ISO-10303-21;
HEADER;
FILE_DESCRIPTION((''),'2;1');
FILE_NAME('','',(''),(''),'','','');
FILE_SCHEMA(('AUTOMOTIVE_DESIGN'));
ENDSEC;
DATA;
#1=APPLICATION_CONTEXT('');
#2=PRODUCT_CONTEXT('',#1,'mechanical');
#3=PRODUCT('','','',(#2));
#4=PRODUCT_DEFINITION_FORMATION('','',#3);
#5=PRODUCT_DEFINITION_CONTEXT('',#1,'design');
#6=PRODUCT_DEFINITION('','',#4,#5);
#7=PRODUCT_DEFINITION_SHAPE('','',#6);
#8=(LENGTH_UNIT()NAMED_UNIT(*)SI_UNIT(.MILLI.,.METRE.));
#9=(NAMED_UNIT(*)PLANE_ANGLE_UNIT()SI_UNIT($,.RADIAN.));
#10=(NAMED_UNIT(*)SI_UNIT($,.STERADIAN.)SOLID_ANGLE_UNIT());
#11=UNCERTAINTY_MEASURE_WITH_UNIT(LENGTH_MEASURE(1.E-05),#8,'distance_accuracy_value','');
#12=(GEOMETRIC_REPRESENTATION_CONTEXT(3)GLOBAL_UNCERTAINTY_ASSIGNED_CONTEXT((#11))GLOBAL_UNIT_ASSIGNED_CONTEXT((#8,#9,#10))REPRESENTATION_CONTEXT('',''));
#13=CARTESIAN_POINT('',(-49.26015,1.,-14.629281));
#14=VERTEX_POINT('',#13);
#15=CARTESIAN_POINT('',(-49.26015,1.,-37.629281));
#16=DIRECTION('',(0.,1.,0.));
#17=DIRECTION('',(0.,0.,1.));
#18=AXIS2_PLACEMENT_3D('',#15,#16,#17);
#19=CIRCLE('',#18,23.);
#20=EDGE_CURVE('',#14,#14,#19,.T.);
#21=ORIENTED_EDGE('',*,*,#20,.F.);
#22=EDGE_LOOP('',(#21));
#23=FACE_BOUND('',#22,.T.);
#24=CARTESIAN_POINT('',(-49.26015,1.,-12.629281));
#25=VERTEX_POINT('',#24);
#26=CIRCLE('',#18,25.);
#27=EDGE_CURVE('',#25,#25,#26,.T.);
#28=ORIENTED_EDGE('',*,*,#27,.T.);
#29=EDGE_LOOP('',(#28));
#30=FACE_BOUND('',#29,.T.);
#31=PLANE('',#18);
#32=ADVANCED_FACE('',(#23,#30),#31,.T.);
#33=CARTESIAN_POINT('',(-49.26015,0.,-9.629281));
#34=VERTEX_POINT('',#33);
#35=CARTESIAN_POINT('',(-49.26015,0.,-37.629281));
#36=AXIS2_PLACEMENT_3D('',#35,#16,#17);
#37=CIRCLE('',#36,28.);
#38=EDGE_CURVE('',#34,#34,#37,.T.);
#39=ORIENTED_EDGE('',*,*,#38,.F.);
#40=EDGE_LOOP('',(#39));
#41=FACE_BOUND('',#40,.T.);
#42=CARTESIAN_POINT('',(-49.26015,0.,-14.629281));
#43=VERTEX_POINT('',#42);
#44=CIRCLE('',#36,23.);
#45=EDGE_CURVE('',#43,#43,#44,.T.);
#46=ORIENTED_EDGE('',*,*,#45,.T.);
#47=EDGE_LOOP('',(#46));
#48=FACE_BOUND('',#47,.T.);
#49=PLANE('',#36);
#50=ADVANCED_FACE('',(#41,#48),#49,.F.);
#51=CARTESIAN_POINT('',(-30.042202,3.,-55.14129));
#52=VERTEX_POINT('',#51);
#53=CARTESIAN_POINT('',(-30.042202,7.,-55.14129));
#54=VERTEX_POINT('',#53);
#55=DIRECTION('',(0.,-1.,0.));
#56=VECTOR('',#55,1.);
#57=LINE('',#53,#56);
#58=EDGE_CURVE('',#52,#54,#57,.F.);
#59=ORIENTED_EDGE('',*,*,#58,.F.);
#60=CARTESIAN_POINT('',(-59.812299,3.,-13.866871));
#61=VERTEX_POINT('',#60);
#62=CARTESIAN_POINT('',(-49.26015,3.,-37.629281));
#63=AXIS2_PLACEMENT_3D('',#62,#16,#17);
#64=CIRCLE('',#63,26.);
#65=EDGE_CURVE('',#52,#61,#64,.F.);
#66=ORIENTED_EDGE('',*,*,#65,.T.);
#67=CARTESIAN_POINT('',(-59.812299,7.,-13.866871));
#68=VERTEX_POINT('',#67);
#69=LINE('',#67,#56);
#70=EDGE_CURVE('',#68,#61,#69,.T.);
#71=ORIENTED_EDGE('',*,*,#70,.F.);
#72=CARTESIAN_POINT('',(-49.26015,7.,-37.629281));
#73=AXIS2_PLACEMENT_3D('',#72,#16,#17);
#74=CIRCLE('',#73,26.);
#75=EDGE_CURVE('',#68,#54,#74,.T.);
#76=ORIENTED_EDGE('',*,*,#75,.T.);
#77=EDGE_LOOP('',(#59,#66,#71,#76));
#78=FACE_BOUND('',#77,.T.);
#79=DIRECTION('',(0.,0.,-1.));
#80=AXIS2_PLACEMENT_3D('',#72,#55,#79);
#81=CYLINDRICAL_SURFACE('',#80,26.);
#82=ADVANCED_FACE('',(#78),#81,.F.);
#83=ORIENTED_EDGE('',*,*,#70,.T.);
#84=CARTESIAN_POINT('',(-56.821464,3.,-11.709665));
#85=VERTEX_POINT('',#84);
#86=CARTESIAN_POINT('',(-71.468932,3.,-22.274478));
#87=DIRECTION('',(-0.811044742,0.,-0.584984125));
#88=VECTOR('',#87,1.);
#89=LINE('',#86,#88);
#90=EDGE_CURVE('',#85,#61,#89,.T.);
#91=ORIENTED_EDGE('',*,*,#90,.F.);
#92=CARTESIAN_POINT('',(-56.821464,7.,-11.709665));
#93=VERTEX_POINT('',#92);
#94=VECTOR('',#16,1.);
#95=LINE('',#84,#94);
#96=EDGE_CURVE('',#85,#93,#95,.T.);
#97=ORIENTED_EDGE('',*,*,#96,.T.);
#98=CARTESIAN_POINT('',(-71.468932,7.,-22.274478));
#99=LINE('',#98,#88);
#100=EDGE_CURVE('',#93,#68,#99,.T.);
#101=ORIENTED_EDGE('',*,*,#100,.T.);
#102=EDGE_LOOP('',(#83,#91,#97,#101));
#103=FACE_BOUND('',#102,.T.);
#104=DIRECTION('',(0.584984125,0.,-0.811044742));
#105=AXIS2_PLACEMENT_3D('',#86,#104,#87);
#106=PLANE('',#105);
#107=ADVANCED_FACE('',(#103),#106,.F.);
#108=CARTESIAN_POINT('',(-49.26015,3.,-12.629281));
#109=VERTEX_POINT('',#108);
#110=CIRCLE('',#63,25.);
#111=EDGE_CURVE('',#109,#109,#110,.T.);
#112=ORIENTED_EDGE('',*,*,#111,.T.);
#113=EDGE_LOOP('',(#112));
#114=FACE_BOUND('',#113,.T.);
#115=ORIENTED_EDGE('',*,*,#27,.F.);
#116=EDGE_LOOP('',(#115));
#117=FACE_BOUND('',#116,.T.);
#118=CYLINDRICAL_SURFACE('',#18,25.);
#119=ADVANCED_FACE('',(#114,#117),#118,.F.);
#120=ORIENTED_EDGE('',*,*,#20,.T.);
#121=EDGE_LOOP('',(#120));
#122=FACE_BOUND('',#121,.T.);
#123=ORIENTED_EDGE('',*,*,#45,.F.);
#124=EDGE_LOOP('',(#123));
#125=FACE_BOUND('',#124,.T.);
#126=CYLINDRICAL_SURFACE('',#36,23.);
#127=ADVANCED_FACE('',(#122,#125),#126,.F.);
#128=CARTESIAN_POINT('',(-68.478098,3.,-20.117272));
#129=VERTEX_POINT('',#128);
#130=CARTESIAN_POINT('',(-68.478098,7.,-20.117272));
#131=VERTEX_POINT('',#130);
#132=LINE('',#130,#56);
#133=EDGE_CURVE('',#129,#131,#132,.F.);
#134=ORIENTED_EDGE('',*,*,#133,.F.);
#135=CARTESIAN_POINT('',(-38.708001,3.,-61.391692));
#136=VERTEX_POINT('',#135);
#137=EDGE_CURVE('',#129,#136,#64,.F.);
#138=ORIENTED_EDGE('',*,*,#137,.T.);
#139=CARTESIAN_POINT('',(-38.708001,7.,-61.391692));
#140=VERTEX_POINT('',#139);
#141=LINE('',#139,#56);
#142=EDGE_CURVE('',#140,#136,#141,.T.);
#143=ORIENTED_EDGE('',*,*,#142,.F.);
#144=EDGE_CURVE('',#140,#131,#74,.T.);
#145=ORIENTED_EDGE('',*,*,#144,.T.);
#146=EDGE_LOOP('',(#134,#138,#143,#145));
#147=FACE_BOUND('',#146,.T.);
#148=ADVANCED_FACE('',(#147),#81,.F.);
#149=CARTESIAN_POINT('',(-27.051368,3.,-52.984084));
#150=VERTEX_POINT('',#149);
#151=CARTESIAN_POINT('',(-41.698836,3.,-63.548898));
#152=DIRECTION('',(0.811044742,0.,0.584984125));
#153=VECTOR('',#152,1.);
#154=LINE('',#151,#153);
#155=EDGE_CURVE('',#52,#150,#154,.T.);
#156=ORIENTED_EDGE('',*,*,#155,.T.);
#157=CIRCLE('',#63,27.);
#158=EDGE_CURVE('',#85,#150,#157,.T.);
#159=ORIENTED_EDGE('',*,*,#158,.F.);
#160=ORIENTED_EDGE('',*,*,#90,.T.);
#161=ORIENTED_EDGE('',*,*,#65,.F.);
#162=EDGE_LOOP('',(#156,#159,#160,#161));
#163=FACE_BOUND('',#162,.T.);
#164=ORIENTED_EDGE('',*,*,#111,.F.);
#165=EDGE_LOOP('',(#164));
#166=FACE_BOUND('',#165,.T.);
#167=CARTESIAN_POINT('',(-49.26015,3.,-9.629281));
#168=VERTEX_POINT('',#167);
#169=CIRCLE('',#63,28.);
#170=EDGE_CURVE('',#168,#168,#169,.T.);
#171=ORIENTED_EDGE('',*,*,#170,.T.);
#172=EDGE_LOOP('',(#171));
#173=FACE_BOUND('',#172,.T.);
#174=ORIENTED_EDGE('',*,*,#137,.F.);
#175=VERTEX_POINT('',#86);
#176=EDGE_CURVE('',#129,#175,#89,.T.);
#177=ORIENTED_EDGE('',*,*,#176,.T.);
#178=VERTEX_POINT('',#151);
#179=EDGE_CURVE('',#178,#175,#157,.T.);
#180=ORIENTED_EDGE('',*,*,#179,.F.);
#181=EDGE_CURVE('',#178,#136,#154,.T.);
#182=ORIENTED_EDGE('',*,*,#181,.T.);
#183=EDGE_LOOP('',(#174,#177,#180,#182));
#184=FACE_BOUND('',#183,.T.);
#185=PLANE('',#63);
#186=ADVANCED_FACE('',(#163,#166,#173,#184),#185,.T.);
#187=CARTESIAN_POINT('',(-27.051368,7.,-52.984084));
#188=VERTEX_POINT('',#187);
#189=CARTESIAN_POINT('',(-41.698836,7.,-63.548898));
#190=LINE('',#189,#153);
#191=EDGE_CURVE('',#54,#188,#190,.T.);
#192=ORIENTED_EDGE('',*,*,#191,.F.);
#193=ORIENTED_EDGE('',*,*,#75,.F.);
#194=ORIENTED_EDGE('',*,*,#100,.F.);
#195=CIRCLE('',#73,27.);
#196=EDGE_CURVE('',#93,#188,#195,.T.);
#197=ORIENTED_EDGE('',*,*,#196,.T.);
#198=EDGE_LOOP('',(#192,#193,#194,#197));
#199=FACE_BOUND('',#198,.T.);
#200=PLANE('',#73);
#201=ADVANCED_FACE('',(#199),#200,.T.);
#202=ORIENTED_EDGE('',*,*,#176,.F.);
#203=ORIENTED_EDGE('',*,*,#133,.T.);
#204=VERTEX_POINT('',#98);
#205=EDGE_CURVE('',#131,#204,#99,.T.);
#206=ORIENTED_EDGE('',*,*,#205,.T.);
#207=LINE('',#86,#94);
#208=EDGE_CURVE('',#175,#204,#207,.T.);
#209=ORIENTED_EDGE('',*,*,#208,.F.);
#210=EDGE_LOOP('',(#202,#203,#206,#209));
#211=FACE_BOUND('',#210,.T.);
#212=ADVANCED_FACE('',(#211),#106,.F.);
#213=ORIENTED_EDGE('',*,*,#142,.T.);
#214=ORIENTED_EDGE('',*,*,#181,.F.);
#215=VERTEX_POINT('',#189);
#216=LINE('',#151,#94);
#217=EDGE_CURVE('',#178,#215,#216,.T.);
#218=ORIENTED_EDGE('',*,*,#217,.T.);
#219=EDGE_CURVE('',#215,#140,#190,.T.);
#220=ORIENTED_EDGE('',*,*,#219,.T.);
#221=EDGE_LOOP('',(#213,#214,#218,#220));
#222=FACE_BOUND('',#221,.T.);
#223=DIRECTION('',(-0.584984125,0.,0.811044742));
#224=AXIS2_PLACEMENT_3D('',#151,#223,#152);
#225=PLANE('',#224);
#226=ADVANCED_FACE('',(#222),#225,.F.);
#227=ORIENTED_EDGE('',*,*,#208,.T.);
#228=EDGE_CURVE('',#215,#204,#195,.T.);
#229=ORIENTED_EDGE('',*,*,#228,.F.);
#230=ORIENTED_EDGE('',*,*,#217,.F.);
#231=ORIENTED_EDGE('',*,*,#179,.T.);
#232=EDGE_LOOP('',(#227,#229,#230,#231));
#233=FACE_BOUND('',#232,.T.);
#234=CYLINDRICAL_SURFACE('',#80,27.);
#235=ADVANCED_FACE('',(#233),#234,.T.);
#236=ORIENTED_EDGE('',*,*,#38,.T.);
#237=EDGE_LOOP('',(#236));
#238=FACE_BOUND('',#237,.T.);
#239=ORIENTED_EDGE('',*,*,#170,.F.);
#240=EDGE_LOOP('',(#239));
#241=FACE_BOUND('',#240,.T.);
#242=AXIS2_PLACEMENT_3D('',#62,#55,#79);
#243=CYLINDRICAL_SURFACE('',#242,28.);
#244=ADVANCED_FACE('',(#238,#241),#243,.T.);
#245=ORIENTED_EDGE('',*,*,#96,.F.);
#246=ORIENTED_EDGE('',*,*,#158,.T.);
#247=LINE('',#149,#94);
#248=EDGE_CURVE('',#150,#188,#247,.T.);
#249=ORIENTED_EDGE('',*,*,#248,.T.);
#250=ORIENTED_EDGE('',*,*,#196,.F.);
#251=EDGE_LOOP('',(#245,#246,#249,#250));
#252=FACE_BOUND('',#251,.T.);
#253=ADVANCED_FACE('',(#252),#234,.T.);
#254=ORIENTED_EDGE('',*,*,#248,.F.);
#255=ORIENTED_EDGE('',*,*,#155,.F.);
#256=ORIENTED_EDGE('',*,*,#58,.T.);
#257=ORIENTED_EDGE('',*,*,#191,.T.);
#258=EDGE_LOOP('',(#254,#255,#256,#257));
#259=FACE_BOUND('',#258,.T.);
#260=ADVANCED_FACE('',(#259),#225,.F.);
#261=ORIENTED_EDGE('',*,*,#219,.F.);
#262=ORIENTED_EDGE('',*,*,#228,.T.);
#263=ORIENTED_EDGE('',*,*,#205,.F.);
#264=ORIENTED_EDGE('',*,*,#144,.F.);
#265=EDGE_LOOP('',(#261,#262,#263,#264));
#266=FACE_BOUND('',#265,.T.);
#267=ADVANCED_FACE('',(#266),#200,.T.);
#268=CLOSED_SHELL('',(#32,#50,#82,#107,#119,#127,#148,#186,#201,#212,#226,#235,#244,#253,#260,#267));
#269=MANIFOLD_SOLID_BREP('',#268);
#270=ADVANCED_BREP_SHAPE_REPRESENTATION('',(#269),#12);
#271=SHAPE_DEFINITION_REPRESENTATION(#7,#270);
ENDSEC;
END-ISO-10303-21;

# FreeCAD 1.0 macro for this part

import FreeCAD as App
import Part
import Sketcher
from FreeCAD import Vector
Q = App.Units.Quantity

doc = App.newDocument("Part")
body = doc.addObject("PartDesign::Body", "Body")

# Sketch on XZ plane
sketch1 = body.newObject("Sketcher::SketchObject", "Sketch")
sketch1.AttachmentSupport = (doc.getObject("XZ_Plane"), [""])
sketch1.MapMode = "FlatFace"
sketch1.addGeometry(Part.Circle(Vector(-49.26015, -37.629281, 0), Vector(0, 0, 1), 28), False)
sketch1.addConstraint([
    Sketcher.Constraint("Diameter", 0, Q("56 mm")),
    Sketcher.Constraint("DistanceX", 0, 3, -1, 1, Q("49.26015 mm")),
    Sketcher.Constraint("DistanceY", 0, 3, -1, 1, Q("37.629281 mm")),
])
pad1 = body.newObject("PartDesign::Pad", "Pad")
pad1.Profile = sketch1
pad1.Length = 3
pad1.Reversed = True

# Sketch on XZ plane
sketch2 = body.newObject("Sketcher::SketchObject", "Sketch001")
sketch2.AttachmentSupport = (doc.getObject("XZ_Plane"), [""])
sketch2.MapMode = "FlatFace"
sketch2.AttachmentOffset = App.Placement(Vector(0, 0, -3), App.Rotation())
sketch2.addGeometry([
    Part.Circle(Vector(-49.26015, -37.629281, 0), Vector(0, 0, 1), 27),
    Part.Circle(Vector(-49.26015, -37.629281, 0), Vector(0, 0, 1), 26),
], False)
sketch2.addConstraint([
    Sketcher.Constraint("Coincident", 1, 3, 0, 3),
    Sketcher.Constraint("Diameter", 0, Q("54 mm")),
    Sketcher.Constraint("Diameter", 1, Q("52 mm")),
    Sketcher.Constraint("DistanceX", 0, 3, -1, 1, Q("49.26015 mm")),
    Sketcher.Constraint("DistanceY", 0, 3, -1, 1, Q("37.629281 mm")),
])
pad2 = body.newObject("PartDesign::Pad", "Pad001")
pad2.Profile = sketch2
pad2.Length = 4
pad2.Reversed = True

# Sketch on XZ plane
sketch3 = body.newObject("Sketcher::SketchObject", "Sketch002")
sketch3.AttachmentSupport = (doc.getObject("XZ_Plane"), [""])
sketch3.MapMode = "FlatFace"
sketch3.AttachmentOffset = App.Placement(Vector(0, 0, -3), App.Rotation())
sketch3.addGeometry(Part.Circle(Vector(-49.26015, -37.629281, 0), Vector(0, 0, 1), 25), False)
sketch3.addConstraint([
    Sketcher.Constraint("Diameter", 0, Q("50 mm")),
    Sketcher.Constraint("DistanceX", 0, 3, -1, 1, Q("49.26015 mm")),
    Sketcher.Constraint("DistanceY", 0, 3, -1, 1, Q("37.629281 mm")),
])
pocket1 = body.newObject("PartDesign::Pocket", "Pocket")
pocket1.Profile = sketch3
pocket1.Length = 2
pocket1.Reversed = True

# Sketch on XZ plane
sketch4 = body.newObject("Sketcher::SketchObject", "Sketch003")
sketch4.AttachmentSupport = (doc.getObject("XZ_Plane"), [""])
sketch4.MapMode = "FlatFace"
sketch4.AttachmentOffset = App.Placement(Vector(0, 0, -1), App.Rotation())
sketch4.addGeometry(Part.Circle(Vector(-49.26015, -37.629281, 0), Vector(0, 0, 1), 23), False)
sketch4.addConstraint([
    Sketcher.Constraint("Diameter", 0, Q("46 mm")),
    Sketcher.Constraint("DistanceX", 0, 3, -1, 1, Q("49.26015 mm")),
    Sketcher.Constraint("DistanceY", 0, 3, -1, 1, Q("37.629281 mm")),
])
pocket2 = body.newObject("PartDesign::Pocket", "Pocket001")
pocket2.Profile = sketch4
pocket2.Type = "ThroughAll"
pocket2.Reversed = True

# Sketch on XZ plane
sketch5 = body.newObject("Sketcher::SketchObject", "Sketch004")
sketch5.AttachmentSupport = (doc.getObject("XZ_Plane"), [""])
sketch5.MapMode = "FlatFace"
sketch5.AttachmentOffset = App.Placement(Vector(0, 0, -7), App.Rotation())
sketch5.addGeometry([
    Part.LineSegment(Vector(-56.821464, -11.709665, 0), Vector(-71.468932, -22.274478, 0)),  # 0
    Part.LineSegment(Vector(-71.468932, -22.274478, 0), Vector(-74.029033, -18.725055, 0)),  # 1
    Part.LineSegment(Vector(-74.029033, -18.725055, 0), Vector(-59.381565, -8.160242, 0)),  # 2
    Part.LineSegment(Vector(-59.381565, -8.160242, 0), Vector(-56.821464, -11.709665, 0)),  # 3
    Part.LineSegment(Vector(-24.491267, -56.533507, 0), Vector(-39.138735, -67.09832, 0)),  # 4
    Part.LineSegment(Vector(-39.138735, -67.09832, 0), Vector(-41.698836, -63.548898, 0)),  # 5
    Part.LineSegment(Vector(-41.698836, -63.548898, 0), Vector(-27.051368, -52.984084, 0)),  # 6
    Part.LineSegment(Vector(-27.051368, -52.984084, 0), Vector(-24.491267, -56.533507, 0)),  # 7
], False)
sketch5.addConstraint([
    Sketcher.Constraint("Coincident", 0, 2, 1, 1),
    Sketcher.Constraint("Coincident", 1, 2, 2, 1),
    Sketcher.Constraint("Coincident", 2, 2, 3, 1),
    Sketcher.Constraint("Coincident", 3, 2, 0, 1),
    Sketcher.Constraint("Coincident", 4, 2, 5, 1),
    Sketcher.Constraint("Coincident", 5, 2, 6, 1),
    Sketcher.Constraint("Coincident", 6, 2, 7, 1),
    Sketcher.Constraint("Coincident", 7, 2, 4, 1),
    Sketcher.Constraint("Perpendicular", 0, 1),
    Sketcher.Constraint("Perpendicular", 1, 2),
    Sketcher.Constraint("Perpendicular", 2, 3),
    Sketcher.Constraint("Perpendicular", 3, 4),
    Sketcher.Constraint("Perpendicular", 4, 5),
    Sketcher.Constraint("Perpendicular", 5, 6),
    Sketcher.Constraint("Perpendicular", 6, 7),
    Sketcher.Constraint("Equal", 2, 4),
    Sketcher.Constraint("Equal", 3, 5),
    Sketcher.Constraint("Distance", 0, Q("18.06 mm")),
    Sketcher.Constraint("DistanceX", 1, 2, 0, 2, Q("2.5601 mm")),
    Sketcher.Constraint("Distance", 1, Q("4.376359 mm")),
    Sketcher.Constraint("DistanceY", 2, 2, -1, 1, Q("8.160242 mm")),
    Sketcher.Constraint("DistanceY", 4, 2, -1, 1, Q("67.09832 mm")),
    Sketcher.Constraint("DistanceX", 3, 2, 4, 2, Q("17.682729 mm")),
    Sketcher.Constraint("DistanceX", 0, 2, -1, 1, Q("71.468932 mm")),
])
pocket3 = body.newObject("PartDesign::Pocket", "Pocket002")
pocket3.Profile = sketch5
pocket3.Length = 4
pocket3.Reversed = True

doc.recompute()
